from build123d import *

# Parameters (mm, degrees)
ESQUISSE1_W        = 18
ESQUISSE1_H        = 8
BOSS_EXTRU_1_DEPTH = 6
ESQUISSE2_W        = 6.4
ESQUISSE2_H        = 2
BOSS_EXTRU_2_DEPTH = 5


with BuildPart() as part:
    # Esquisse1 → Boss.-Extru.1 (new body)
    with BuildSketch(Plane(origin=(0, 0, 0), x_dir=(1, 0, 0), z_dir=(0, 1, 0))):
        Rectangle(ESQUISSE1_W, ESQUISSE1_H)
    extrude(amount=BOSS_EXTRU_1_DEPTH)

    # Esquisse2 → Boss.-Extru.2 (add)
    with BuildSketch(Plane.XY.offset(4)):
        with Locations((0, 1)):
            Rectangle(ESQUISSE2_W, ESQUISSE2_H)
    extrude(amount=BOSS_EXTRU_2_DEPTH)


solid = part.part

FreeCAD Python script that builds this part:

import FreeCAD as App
import Part
import Sketcher


def add_polygon(sketch, points):
    """Adds a closed chain of lines whose ends are joined by coincident constraints."""
    first, n = sketch.GeometryCount, len(points)
    for a, b in zip(points, points[1:] + points[:1]):
        sketch.addGeometry(Part.LineSegment(App.Vector(*a, 0), App.Vector(*b, 0)), False)
    for i in range(n):
        sketch.addConstraint(Sketcher.Constraint("Coincident", first + i, 2, first + (i + 1) % n, 1))

doc = App.newDocument("Part")
body = doc.addObject("PartDesign::Body", "Body")

# Sketch on XZ plane
sketch1 = body.newObject("Sketcher::SketchObject", "Sketch")
sketch1.AttachmentSupport = (doc.getObject("XZ_Plane"), [""])
sketch1.MapMode = "FlatFace"
add_polygon(sketch1, [(-9, -4), (-9, 4), (9, 4), (9, -4)])  # lines 0-3
sketch1.addConstraint([
    Sketcher.Constraint("Vertical", 0),
    Sketcher.Constraint("Horizontal", 1),
    Sketcher.Constraint("Vertical", 2),
    Sketcher.Constraint("Horizontal", 3),
    Sketcher.Constraint("Symmetric", 0, 2, 2, 2, -1, 1),
    Sketcher.Constraint("DistanceX", 1, 1, 1, 2, 18.0),
    Sketcher.Constraint("DistanceY", 0, 1, 0, 2, 8.0),
])
pad1 = body.newObject("PartDesign::Pad", "Pad")
pad1.Profile = sketch1
pad1.Length = 6
pad1.Reversed = True

# Sketch on XY plane
sketch2 = body.newObject("Sketcher::SketchObject", "Sketch001")
sketch2.AttachmentSupport = (doc.getObject("XY_Plane"), [""])
sketch2.MapMode = "FlatFace"
sketch2.AttachmentOffset = App.Placement(App.Vector(0, 0, 4), App.Rotation())
add_polygon(sketch2, [(-3.2, 2), (-3.2, 0), (3.2, 0), (3.2, 2)])  # lines 0-3
sketch2.addConstraint([
    Sketcher.Constraint("Vertical", 0),
    Sketcher.Constraint("Horizontal", 1),
    Sketcher.Constraint("Vertical", 2),
    Sketcher.Constraint("Horizontal", 3),
    Sketcher.Constraint("Symmetric", 0, 2, 1, 2, -1, 1),
    Sketcher.Constraint("DistanceY", 0, 2, 0, 1, 2.0),
    Sketcher.Constraint("DistanceX", 1, 1, 1, 2, 6.4),
])
pad2 = body.newObject("PartDesign::Pad", "Pad001")
pad2.Profile = sketch2
pad2.Length = 5

doc.recompute()
